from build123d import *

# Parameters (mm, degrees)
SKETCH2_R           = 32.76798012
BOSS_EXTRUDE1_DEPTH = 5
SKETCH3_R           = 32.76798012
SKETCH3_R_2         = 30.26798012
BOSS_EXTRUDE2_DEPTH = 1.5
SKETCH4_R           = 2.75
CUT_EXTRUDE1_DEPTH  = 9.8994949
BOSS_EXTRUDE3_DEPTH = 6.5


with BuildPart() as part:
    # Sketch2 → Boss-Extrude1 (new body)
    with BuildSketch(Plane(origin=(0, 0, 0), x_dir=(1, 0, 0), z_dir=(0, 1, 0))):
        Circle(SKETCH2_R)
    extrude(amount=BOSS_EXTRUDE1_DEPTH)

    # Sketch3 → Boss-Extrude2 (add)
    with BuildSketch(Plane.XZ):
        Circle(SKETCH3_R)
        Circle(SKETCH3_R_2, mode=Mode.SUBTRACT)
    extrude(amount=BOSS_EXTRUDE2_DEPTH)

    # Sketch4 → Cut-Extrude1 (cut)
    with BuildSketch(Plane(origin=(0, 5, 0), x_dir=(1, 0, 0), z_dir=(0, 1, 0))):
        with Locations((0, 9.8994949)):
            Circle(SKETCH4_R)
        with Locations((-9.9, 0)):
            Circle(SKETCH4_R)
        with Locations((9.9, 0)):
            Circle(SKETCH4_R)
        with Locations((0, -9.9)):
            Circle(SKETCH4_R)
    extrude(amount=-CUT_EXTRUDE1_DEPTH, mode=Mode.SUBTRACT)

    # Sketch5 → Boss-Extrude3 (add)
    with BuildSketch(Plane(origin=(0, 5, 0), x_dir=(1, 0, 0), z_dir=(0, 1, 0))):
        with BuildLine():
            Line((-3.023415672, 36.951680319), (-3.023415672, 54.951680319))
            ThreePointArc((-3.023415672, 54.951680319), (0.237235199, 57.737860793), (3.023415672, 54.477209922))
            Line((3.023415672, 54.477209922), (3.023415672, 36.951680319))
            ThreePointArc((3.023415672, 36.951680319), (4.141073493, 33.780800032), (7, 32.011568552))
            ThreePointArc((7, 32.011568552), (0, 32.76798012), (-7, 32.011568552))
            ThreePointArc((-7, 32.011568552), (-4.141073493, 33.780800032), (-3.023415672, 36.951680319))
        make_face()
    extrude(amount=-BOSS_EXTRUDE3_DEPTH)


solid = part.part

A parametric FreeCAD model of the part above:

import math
import FreeCAD as App
import Part
import Sketcher
from FreeCAD import Vector
Q = App.Units.Quantity

doc = App.newDocument("Part")
body = doc.addObject("PartDesign::Body", "Body")

sketch1 = doc.addObject("Sketcher::SketchObject", "Sketch")
body.addObject(sketch1)
sketch1.AttachmentSupport = (doc.XZ_Plane, [""])
sketch1.MapMode = "FlatFace"
sketch1.addGeometry(Part.Circle(Vector(0, 0, 0), Vector(0, 0, 1), 33), False)
sketch1.addConstraint([
    Sketcher.Constraint("Coincident", 0, 3, -1, 1),
    Sketcher.Constraint("Diameter", 0, Q("65.53596 mm")),
])
pad1 = doc.addObject("PartDesign::Pad", "Pad")
body.addObject(pad1)
pad1.Profile = sketch1
pad1.Length = 5
pad1.Reversed = True

sketch2 = doc.addObject("Sketcher::SketchObject", "Sketch001")
body.addObject(sketch2)
sketch2.AttachmentSupport = (doc.XZ_Plane, [""])
sketch2.MapMode = "FlatFace"
sketch2.addGeometry([
    Part.Circle(Vector(0, 0, 0), Vector(0, 0, 1), 33),
    Part.Circle(Vector(0, 0, 0), Vector(0, 0, 1), 30),
], False)
sketch2.addConstraint([
    Sketcher.Constraint("Coincident", 0, 3, -1, 1),
    Sketcher.Constraint("Coincident", 1, 3, -1, 1),
    Sketcher.Constraint("Diameter", 0, Q("65.53596 mm")),
    Sketcher.Constraint("Diameter", 1, Q("60.53596 mm")),
])
pad2 = doc.addObject("PartDesign::Pad", "Pad001")
body.addObject(pad2)
pad2.Profile = sketch2
pad2.Length = 1.5

sketch3 = doc.addObject("Sketcher::SketchObject", "Sketch002")
body.addObject(sketch3)
sketch3.AttachmentSupport = (doc.XZ_Plane, [""])
sketch3.MapMode = "FlatFace"
sketch3.AttachmentOffset = App.Placement(Vector(0, 0, -5), App.Rotation())
sketch3.addGeometry([
    Part.Circle(Vector(0, -9.9, 0), Vector(0, 0, 1), 2.8),
    Part.Circle(Vector(-9.9, 0, 0), Vector(0, 0, 1), 2.8),
    Part.Circle(Vector(9.9, 0, 0), Vector(0, 0, 1), 2.8),
    Part.Circle(Vector(0, 9.9, 0), Vector(0, 0, 1), 2.8),
], False)
sketch3.addConstraint([
    Sketcher.Constraint("Equal", 0, 1),
    Sketcher.Constraint("Equal", 1, 2),
    Sketcher.Constraint("Equal", 2, 3),
    Sketcher.Constraint("Symmetric", 1, 3, 2, 3, -1, 1),
    Sketcher.Constraint("PointOnObject", 0, 3, -2),
    Sketcher.Constraint("PointOnObject", 1, 3, -1),
    Sketcher.Constraint("PointOnObject", 3, 3, -2),
    Sketcher.Constraint("Diameter", 0, Q("5.5 mm")),
    Sketcher.Constraint("DistanceX", 1, 3, -1, 1, Q("9.9 mm")),
    Sketcher.Constraint("DistanceY", -1, 1, 3, 3, Q("9.9 mm")),
    Sketcher.Constraint("DistanceY", 0, 3, -1, 1, Q("9.899495 mm")),
])
pocket1 = doc.addObject("PartDesign::Pocket", "Pocket")
body.addObject(pocket1)
pocket1.Profile = sketch3
pocket1.Length = 9.899495
pocket1.Reversed = True

sketch4 = doc.addObject("Sketcher::SketchObject", "Sketch003")
body.addObject(sketch4)
sketch4.AttachmentSupport = (doc.XZ_Plane, [""])
sketch4.MapMode = "FlatFace"
sketch4.AttachmentOffset = App.Placement(Vector(0, 0, -5), App.Rotation())
sketch4.addGeometry([
    Part.LineSegment(Vector(-3, -55, 0), Vector(-3, -37, 0)),
    Part.ArcOfCircle(Part.Circle(Vector(-8.1, -37, 0), Vector(0, 0, 1), 5.1), math.radians(0), math.radians(78)),
    Part.ArcOfCircle(Part.Circle(Vector(0, 0, 0), Vector(0, 0, 1), 32.8), math.radians(-102), math.radians(-78)),
    Part.ArcOfCircle(Part.Circle(Vector(8.1, -37, 0), Vector(0, 0, 1), 5.1), math.radians(102), math.radians(180)),
    Part.LineSegment(Vector(3, -37, 0), Vector(3, -54.5, 0)),
    Part.ArcOfCircle(Part.Circle(Vector(0, -54.7, 0), Vector(0, 0, 1), 3), math.radians(-176), math.radians(4)),
], False)
sketch4.addConstraint([
    Sketcher.Constraint("Tangent", 0, 2, 1, 1),
    Sketcher.Constraint("Tangent", 1, 2, 2, 1),
    Sketcher.Constraint("Tangent", 2, 2, 3, 1),
    Sketcher.Constraint("Tangent", 3, 2, 4, 1),
    Sketcher.Constraint("Coincident", 4, 2, 5, 2),
    Sketcher.Constraint("Coincident", 5, 1, 0, 1),
    Sketcher.Constraint("Vertical", 0),
    Sketcher.Constraint("Vertical", 4),
    Sketcher.Constraint("Coincident", 2, 3, -1, 1),
    Sketcher.Constraint("Equal", 1, 3),
    Sketcher.Constraint("PointOnObject", 5, 3, -2),
    Sketcher.Constraint("Horizontal", 1, 3, 3, 3),
    Sketcher.Constraint("DistanceY", 0, 1, 0, 2, Q("18 mm")),
    Sketcher.Constraint("DistanceX", 1, 2, -1, 1, Q("7 mm")),
    Sketcher.Constraint("Radius", 2, Q("32.76798 mm")),
    Sketcher.Constraint("Radius", 5, Q("3.032709 mm")),
    Sketcher.Constraint("Radius", 1, Q("5.056843 mm")),
])
pad3 = doc.addObject("PartDesign::Pad", "Pad002")
body.addObject(pad3)
pad3.Profile = sketch4
pad3.Length = 6.5

doc.recompute()
